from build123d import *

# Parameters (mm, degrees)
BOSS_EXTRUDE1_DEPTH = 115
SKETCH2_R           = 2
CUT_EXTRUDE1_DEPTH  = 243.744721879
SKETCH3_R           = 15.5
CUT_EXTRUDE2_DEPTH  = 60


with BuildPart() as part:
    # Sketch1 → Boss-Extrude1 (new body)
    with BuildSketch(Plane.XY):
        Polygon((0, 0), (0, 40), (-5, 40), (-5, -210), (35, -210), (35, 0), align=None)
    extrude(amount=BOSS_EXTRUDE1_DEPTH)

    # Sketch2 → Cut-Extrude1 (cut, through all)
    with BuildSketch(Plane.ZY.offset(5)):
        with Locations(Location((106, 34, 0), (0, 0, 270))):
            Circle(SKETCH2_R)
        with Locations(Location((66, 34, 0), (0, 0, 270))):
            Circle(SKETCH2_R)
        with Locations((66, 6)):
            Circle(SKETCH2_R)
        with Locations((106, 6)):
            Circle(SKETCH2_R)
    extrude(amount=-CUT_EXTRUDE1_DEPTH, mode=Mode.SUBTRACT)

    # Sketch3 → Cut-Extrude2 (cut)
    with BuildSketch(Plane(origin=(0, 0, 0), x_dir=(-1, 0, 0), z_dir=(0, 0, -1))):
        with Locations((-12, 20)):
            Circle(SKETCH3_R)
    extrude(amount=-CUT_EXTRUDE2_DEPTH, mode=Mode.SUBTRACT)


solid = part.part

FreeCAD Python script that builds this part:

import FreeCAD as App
import Part
import Sketcher
Q = App.Units.Quantity

doc = App.newDocument("Part")
body = doc.addObject("PartDesign::Body", "Body")

# Sketch on XY plane
sketch1 = body.newObject("Sketcher::SketchObject", "Sketch")
sketch1.AttachmentSupport = (doc.getObject("XY_Plane"), [""])
sketch1.MapMode = "FlatFace"
sketch1.addGeometry([
    Part.LineSegment(App.Vector(0, 0, 0), App.Vector(0, 40, 0)),  # 0
    Part.LineSegment(App.Vector(0, 40, 0), App.Vector(-5, 40, 0)),  # 1
    Part.LineSegment(App.Vector(-5, 40, 0), App.Vector(-5, -210, 0)),  # 2
    Part.LineSegment(App.Vector(-5, -210, 0), App.Vector(35, -210, 0)),  # 3
    Part.LineSegment(App.Vector(35, -210, 0), App.Vector(35, 0, 0)),  # 4
    Part.LineSegment(App.Vector(35, 0, 0), App.Vector(0, 0, 0)),  # 5
], False)
sketch1.addConstraint([
    Sketcher.Constraint("Coincident", 0, 2, 1, 1),
    Sketcher.Constraint("Coincident", 1, 2, 2, 1),
    Sketcher.Constraint("Coincident", 2, 2, 3, 1),
    Sketcher.Constraint("Coincident", 3, 2, 4, 1),
    Sketcher.Constraint("Coincident", 4, 2, 5, 1),
    Sketcher.Constraint("Coincident", 5, 2, 0, 1),
    Sketcher.Constraint("Vertical", 0),
    Sketcher.Constraint("Horizontal", 1),
    Sketcher.Constraint("Vertical", 2),
    Sketcher.Constraint("Horizontal", 3),
    Sketcher.Constraint("Vertical", 4),
    Sketcher.Constraint("Horizontal", 5),
    Sketcher.Constraint("Coincident", 5, 2, -1, 1),
    Sketcher.Constraint("Equal", 3, 0),
    Sketcher.Constraint("DistanceX", 1, 2, 1, 1, Q("5 mm")),
    Sketcher.Constraint("DistanceX", 3, 1, 3, 2, Q("40 mm")),
    Sketcher.Constraint("DistanceY", 2, 2, 2, 1, Q("250 mm")),
])
pad1 = body.newObject("PartDesign::Pad", "Pad")
pad1.Profile = sketch1
pad1.Length = 115

# Sketch on YZ plane
sketch2 = body.newObject("Sketcher::SketchObject", "Sketch001")
sketch2.AttachmentSupport = (doc.getObject("YZ_Plane"), [""])
sketch2.MapMode = "FlatFace"
sketch2.AttachmentOffset = App.Placement(App.Vector(0, 0, -5), App.Rotation())
sketch2.addGeometry([
    Part.Circle(App.Vector(34, 106, 0), App.Vector(0, 0, 1), 2),
    Part.Circle(App.Vector(34, 66, 0), App.Vector(0, 0, 1), 2),
    Part.Circle(App.Vector(6, 66, 0), App.Vector(0, 0, 1), 2),
    Part.Circle(App.Vector(6, 106, 0), App.Vector(0, 0, 1), 2),
], False)
sketch2.addConstraint([
    Sketcher.Constraint("Equal", 0, 1),
    Sketcher.Constraint("Equal", 1, 2),
    Sketcher.Constraint("Equal", 2, 3),
    Sketcher.Constraint("Horizontal", 1, 3, 2, 3),
    Sketcher.Constraint("Horizontal", 0, 3, 3, 3),
    Sketcher.Constraint("Vertical", 0, 3, 1, 3),
    Sketcher.Constraint("Vertical", 2, 3, 3, 3),
    Sketcher.Constraint("Diameter", 0, Q("4 mm")),
    Sketcher.Constraint("DistanceX", -1, 1, 0, 3, Q("34 mm")),
    Sketcher.Constraint("DistanceY", -1, 1, 0, 3, Q("106 mm")),
    Sketcher.Constraint("DistanceY", -1, 1, 1, 3, Q("66 mm")),
    Sketcher.Constraint("DistanceX", -1, 1, 2, 3, Q("6 mm")),
])
pocket1 = body.newObject("PartDesign::Pocket", "Pocket")
pocket1.Profile = sketch2
pocket1.Type = "ThroughAll"
pocket1.Reversed = True

# Sketch on XY plane
sketch3 = body.newObject("Sketcher::SketchObject", "Sketch002")
sketch3.AttachmentSupport = (doc.getObject("XY_Plane"), [""])
sketch3.MapMode = "FlatFace"
sketch3.addGeometry(Part.Circle(App.Vector(12, 20, 0), App.Vector(0, 0, 1), 16), False)
sketch3.addConstraint([
    Sketcher.Constraint("Diameter", 0, Q("31 mm")),
    Sketcher.Constraint("DistanceX", -1, 1, 0, 3, Q("12 mm")),
    Sketcher.Constraint("DistanceY", -1, 1, 0, 3, Q("20 mm")),
])
pocket2 = body.newObject("PartDesign::Pocket", "Pocket001")
pocket2.Profile = sketch3
pocket2.Length = 60
pocket2.Reversed = True

doc.recompute()
